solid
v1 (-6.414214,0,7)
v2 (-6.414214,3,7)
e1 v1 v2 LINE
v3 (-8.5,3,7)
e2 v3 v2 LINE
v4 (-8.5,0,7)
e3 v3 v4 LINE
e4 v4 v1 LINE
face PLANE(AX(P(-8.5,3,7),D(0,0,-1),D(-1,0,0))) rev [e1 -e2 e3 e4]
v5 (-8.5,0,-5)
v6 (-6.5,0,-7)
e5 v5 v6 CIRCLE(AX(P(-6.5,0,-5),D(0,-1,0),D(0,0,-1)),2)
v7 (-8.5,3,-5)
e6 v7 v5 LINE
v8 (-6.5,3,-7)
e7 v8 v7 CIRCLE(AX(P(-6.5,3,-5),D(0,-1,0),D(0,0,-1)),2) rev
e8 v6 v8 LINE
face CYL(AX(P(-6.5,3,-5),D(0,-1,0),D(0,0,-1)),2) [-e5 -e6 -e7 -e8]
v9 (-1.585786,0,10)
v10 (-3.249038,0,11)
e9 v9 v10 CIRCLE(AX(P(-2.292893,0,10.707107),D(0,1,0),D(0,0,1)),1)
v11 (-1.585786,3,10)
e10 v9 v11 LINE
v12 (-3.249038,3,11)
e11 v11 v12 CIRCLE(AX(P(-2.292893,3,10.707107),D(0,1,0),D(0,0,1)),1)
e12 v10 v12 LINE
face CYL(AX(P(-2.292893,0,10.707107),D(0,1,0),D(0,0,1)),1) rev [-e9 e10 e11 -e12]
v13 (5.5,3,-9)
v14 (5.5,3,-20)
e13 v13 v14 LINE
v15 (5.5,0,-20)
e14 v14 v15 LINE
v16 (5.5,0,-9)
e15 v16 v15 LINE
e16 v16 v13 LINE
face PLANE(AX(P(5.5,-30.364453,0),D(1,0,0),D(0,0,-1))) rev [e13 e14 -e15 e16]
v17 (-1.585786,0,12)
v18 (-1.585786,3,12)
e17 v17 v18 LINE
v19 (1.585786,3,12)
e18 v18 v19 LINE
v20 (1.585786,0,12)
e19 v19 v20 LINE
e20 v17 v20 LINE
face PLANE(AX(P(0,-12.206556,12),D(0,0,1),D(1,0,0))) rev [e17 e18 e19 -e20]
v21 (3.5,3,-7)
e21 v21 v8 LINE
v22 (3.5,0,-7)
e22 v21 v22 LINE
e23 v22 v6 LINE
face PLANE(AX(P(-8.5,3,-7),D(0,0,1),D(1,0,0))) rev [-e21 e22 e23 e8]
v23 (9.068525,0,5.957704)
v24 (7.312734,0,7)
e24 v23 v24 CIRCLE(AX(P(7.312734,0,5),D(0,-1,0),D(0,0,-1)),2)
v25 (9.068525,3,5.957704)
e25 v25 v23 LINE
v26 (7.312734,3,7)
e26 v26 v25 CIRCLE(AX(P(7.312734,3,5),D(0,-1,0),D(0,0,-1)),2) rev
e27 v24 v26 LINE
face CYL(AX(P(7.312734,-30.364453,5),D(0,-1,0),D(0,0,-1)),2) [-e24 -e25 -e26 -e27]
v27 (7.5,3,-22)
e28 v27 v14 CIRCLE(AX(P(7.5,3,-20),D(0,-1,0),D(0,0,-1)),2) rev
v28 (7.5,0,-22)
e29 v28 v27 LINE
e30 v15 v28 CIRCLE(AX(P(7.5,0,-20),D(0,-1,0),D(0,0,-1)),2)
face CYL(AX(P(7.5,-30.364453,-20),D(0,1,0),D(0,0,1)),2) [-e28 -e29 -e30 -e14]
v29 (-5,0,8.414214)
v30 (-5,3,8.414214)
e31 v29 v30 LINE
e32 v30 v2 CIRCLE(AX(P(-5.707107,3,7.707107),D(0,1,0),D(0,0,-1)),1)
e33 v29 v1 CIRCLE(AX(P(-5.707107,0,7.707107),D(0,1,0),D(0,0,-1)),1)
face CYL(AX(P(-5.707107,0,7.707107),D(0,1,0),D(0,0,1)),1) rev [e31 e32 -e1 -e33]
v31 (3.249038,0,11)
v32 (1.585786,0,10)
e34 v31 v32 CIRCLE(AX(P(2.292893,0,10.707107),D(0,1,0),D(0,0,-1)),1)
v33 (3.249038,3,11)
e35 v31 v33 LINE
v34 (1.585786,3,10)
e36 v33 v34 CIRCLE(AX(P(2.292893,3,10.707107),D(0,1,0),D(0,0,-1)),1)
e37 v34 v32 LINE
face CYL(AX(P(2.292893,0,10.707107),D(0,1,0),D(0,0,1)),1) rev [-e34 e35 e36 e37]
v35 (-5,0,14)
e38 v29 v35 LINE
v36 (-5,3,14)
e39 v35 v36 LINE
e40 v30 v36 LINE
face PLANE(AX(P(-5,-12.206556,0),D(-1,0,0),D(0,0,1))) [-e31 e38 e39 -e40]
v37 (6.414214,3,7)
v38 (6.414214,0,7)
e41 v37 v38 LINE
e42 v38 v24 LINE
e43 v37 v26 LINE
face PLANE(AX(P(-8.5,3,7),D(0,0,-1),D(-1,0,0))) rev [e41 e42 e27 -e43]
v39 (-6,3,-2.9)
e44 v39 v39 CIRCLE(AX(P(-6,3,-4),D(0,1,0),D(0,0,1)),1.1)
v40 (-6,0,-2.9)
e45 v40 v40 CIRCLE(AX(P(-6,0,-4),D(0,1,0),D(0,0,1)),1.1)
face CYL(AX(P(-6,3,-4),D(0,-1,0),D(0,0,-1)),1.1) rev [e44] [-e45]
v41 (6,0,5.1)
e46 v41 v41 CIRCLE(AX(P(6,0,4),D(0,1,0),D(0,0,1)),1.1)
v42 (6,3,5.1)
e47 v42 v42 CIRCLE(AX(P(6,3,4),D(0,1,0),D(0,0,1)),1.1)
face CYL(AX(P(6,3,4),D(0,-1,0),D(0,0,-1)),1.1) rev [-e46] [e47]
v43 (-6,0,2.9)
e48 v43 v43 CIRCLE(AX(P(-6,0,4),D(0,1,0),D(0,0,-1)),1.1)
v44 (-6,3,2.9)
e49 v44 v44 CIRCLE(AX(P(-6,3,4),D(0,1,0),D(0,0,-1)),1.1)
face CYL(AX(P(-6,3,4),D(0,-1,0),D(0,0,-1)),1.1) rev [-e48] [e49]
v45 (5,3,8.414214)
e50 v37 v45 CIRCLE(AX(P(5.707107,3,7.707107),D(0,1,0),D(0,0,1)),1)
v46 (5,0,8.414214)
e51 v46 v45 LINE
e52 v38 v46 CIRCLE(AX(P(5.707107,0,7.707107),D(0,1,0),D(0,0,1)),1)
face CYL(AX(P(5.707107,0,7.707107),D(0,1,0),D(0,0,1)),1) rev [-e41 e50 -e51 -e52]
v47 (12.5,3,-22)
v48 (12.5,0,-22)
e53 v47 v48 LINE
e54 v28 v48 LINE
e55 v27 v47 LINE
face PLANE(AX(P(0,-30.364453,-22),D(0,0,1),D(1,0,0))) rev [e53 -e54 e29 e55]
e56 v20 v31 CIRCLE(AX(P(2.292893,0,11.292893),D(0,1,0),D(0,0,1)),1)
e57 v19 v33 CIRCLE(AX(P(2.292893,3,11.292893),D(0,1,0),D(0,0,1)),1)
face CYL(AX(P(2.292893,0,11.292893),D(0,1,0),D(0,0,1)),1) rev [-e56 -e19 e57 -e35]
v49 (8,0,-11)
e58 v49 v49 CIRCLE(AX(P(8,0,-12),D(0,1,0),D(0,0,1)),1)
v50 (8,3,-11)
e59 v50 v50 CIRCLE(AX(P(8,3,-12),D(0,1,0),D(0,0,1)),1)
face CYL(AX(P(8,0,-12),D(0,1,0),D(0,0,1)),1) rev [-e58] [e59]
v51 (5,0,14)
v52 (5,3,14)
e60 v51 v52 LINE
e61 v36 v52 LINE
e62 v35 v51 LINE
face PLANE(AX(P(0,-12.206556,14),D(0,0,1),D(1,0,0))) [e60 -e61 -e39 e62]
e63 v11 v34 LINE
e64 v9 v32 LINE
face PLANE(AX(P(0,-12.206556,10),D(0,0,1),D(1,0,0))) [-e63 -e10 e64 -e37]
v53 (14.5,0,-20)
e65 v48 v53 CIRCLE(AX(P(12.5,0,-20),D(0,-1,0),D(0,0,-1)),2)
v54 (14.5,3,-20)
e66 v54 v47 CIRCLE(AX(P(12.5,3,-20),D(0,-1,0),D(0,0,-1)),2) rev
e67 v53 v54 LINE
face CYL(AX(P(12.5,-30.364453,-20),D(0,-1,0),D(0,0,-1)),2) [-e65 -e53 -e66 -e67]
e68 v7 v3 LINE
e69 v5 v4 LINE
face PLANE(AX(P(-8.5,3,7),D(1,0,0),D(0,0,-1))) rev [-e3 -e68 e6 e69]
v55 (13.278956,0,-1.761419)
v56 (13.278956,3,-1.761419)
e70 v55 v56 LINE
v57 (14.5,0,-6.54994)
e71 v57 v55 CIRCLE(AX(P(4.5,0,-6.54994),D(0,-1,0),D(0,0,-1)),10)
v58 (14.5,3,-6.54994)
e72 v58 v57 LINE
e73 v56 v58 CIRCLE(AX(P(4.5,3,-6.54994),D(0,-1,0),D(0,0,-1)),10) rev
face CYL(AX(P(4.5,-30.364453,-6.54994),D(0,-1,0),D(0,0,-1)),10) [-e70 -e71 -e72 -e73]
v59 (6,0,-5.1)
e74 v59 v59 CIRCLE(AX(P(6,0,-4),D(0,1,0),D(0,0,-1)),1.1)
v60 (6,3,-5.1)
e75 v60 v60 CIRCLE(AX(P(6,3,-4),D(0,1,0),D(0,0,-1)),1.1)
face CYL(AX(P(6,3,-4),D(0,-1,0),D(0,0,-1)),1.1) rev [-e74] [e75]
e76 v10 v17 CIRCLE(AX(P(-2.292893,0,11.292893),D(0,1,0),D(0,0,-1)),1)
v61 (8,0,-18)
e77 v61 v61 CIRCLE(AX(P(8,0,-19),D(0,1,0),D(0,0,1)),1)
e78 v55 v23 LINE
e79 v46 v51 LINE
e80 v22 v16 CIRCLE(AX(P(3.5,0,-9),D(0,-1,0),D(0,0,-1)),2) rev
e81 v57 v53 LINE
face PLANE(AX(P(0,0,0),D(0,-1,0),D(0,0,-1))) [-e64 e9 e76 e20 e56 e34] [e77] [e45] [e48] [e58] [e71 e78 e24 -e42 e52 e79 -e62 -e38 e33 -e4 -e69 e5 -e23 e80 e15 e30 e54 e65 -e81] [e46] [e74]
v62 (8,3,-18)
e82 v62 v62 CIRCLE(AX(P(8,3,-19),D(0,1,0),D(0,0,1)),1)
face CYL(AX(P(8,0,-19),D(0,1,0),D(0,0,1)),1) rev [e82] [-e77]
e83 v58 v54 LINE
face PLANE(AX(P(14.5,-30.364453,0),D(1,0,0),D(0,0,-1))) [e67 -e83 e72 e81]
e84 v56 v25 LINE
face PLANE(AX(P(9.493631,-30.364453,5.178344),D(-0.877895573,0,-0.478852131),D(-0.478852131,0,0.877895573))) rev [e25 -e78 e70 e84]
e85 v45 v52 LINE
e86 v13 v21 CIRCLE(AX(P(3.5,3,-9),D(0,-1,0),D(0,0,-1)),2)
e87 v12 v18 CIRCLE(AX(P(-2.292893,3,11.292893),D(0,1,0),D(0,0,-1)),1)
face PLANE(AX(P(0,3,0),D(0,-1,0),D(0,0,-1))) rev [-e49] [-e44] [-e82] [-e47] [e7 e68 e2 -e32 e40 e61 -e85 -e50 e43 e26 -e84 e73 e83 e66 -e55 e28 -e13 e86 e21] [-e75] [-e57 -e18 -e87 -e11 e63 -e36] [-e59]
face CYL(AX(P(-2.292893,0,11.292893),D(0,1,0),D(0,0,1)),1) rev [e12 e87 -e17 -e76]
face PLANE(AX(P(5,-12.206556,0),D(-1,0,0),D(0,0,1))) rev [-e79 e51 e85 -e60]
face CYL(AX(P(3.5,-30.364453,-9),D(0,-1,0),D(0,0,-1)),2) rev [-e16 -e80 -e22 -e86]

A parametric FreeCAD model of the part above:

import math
import FreeCAD as App
import Part
import Sketcher


def edges_at(feature, points):
    """Names of the edges that pass closest to the given points."""
    edges = feature.Shape.Edges
    near = lambda p: min(range(len(edges)), key=lambda i: edges[i].distToShape(Part.Vertex(*p))[0])
    return sorted({f"Edge{near(p) + 1}" for p in points})


def add_polygon(sketch, points):
    """Adds a closed chain of lines whose ends are joined by coincident constraints."""
    first, n = sketch.GeometryCount, len(points)
    for a, b in zip(points, points[1:] + points[:1]):
        sketch.addGeometry(Part.LineSegment(App.Vector(*a, 0), App.Vector(*b, 0)), False)
    for i in range(n):
        sketch.addConstraint(Sketcher.Constraint("Coincident", first + i, 2, first + (i + 1) % n, 1))

doc = App.newDocument("Part")
body = doc.addObject("PartDesign::Body", "Body")

# Sketch on XZ plane
sketch1 = doc.addObject("Sketcher::SketchObject", "Sketch")
body.addObject(sketch1)
sketch1.AttachmentSupport = (doc.XZ_Plane, [""])
sketch1.MapMode = "FlatFace"
add_polygon(sketch1, [(-8.5, -7), (-8.5, 7), (8.5, 7), (8.5, -7)])  # lines 0-3
sketch1.addGeometry(Part.Circle(App.Vector(-6, 4, 0), App.Vector(0, 0, 1), 1.1), False)  # 4
sketch1.addGeometry(Part.Circle(App.Vector(6, 4, 0), App.Vector(0, 0, 1), 1.1), False)  # 5
sketch1.addGeometry(Part.Circle(App.Vector(-6, -4, 0), App.Vector(0, 0, 1), 1.1), False)  # 6
sketch1.addGeometry(Part.Circle(App.Vector(6, -4, 0), App.Vector(0, 0, 1), 1.1), False)  # 7
sketch1.addConstraint(Sketcher.Constraint("Vertical", 0))
sketch1.addConstraint(Sketcher.Constraint("Horizontal", 1))
sketch1.addConstraint(Sketcher.Constraint("Vertical", 2))
sketch1.addConstraint(Sketcher.Constraint("Horizontal", 3))
sketch1.addConstraint(Sketcher.Constraint("Equal", 4, 5))
sketch1.addConstraint(Sketcher.Constraint("Equal", 5, 6))
sketch1.addConstraint(Sketcher.Constraint("Equal", 6, 7))
sketch1.addConstraint(Sketcher.Constraint("Symmetric", 5, 3, 6, 3, -1, 1))
sketch1.addConstraint(Sketcher.Constraint("Symmetric", 4, 3, 7, 3, -1, 1))
sketch1.addConstraint(Sketcher.Constraint("Symmetric", 0, 2, 2, 2, -1, 1))
sketch1.addConstraint(Sketcher.Constraint("Symmetric", 4, 3, 5, 3, -2))
sketch1.addConstraint(Sketcher.Constraint("Diameter", 4, 2.2))
sketch1.addConstraint(Sketcher.Constraint("DistanceX", 1, 1, 1, 2, 17.0))
sketch1.addConstraint(Sketcher.Constraint("DistanceY", 0, 1, 0, 2, 14.0))
sketch1.addConstraint(Sketcher.Constraint("DistanceX", 4, 3, -1, 1, 6.0))
sketch1.addConstraint(Sketcher.Constraint("DistanceY", -1, 1, 4, 3, 4.0))
pad1 = doc.addObject("PartDesign::Pad", "Pad")
body.addObject(pad1)
pad1.Profile = sketch1
pad1.Length = 3
pad1.Reversed = True

# Sketch on XZ plane
sketch2 = doc.addObject("Sketcher::SketchObject", "Sketch001")
body.addObject(sketch2)
sketch2.AttachmentSupport = (doc.XZ_Plane, [""])
sketch2.MapMode = "FlatFace"
sketch2.AttachmentOffset = App.Placement(App.Vector(0, 0, -3), App.Rotation())
add_polygon(sketch2, [(5.5, -22), (5.5, -7), (8.5, -7), (8.5, 7), (14.5, -4), (14.5, -22)])  # lines 0-5
sketch2.addConstraint(Sketcher.Constraint("Vertical", 0))
sketch2.addConstraint(Sketcher.Constraint("Horizontal", 1))
sketch2.addConstraint(Sketcher.Constraint("Vertical", 2))
sketch2.addConstraint(Sketcher.Constraint("Vertical", 4))
sketch2.addConstraint(Sketcher.Constraint("Horizontal", 5))
sketch2.addConstraint(Sketcher.Constraint("DistanceX", 1, 1, 1, 2, 3.0))
sketch2.addConstraint(Sketcher.Constraint("DistanceX", 5, 2, 5, 1, 9.0))
sketch2.addConstraint(Sketcher.Constraint("DistanceY", 0, 1, 0, 2, 15.0))
sketch2.addConstraint(Sketcher.Constraint("DistanceY", 2, 1, 2, 2, 14.0))
sketch2.addConstraint(Sketcher.Constraint("DistanceY", 4, 2, 4, 1, 18.0))
sketch2.addConstraint(Sketcher.Constraint("DistanceY", 0, 2, -1, 1, 7.0))
sketch2.addConstraint(Sketcher.Constraint("DistanceX", -1, 1, 0, 2, 5.5))
pad2 = doc.addObject("PartDesign::Pad", "Pad001")
body.addObject(pad2)
pad2.Profile = sketch2
pad2.Length = 3

# Sketch on XZ plane
sketch3 = doc.addObject("Sketcher::SketchObject", "Sketch002")
body.addObject(sketch3)
sketch3.AttachmentSupport = (doc.XZ_Plane, [""])
sketch3.MapMode = "FlatFace"
sketch3.AttachmentOffset = App.Placement(App.Vector(0, 0, -3), App.Rotation())
sketch3.addGeometry(Part.Circle(App.Vector(8, -19, 0), App.Vector(0, 0, 1), 1), False)
sketch3.addGeometry(Part.Circle(App.Vector(8, -12, 0), App.Vector(0, 0, 1), 1), False)
sketch3.addConstraint(Sketcher.Constraint("Equal", 0, 1))
sketch3.addConstraint(Sketcher.Constraint("Vertical", 0, 3, 1, 3))
sketch3.addConstraint(Sketcher.Constraint("Diameter", 0, 2.0))
sketch3.addConstraint(Sketcher.Constraint("DistanceX", -1, 1, 0, 3, 8.0))
sketch3.addConstraint(Sketcher.Constraint("DistanceY", 0, 3, -1, 1, 19.0))
sketch3.addConstraint(Sketcher.Constraint("DistanceY", 1, 3, -1, 1, 12.0))
pocket1 = doc.addObject("PartDesign::Pocket", "Pocket")
body.addObject(pocket1)
pocket1.Profile = sketch3
pocket1.Type = "ThroughAll"
pocket1.Reversed = True

# Sketch on XZ plane
sketch4 = doc.addObject("Sketcher::SketchObject", "Sketch003")
body.addObject(sketch4)
sketch4.AttachmentSupport = (doc.XZ_Plane, [""])
sketch4.MapMode = "FlatFace"
sketch4.AttachmentOffset = App.Placement(App.Vector(0, 0, -3), App.Rotation())
add_polygon(sketch4, [(-5, 7), (-5, 14), (5, 14), (5, 7)])  # lines 0-3
add_polygon(sketch4, [(3, 12), (-3, 12), (-3, 10), (3, 10)])  # lines 4-7
sketch4.addConstraint(Sketcher.Constraint("Vertical", 0))
sketch4.addConstraint(Sketcher.Constraint("Horizontal", 1))
sketch4.addConstraint(Sketcher.Constraint("Vertical", 2))
sketch4.addConstraint(Sketcher.Constraint("Horizontal", 3))
sketch4.addConstraint(Sketcher.Constraint("Horizontal", 4))
sketch4.addConstraint(Sketcher.Constraint("Vertical", 5))
sketch4.addConstraint(Sketcher.Constraint("Horizontal", 6))
sketch4.addConstraint(Sketcher.Constraint("Vertical", 7))
sketch4.addConstraint(Sketcher.Constraint("DistanceX", 1, 1, 1, 2, 10.0))
sketch4.addConstraint(Sketcher.Constraint("DistanceX", 4, 2, 4, 1, 6.0))
sketch4.addConstraint(Sketcher.Constraint("DistanceY", 0, 1, 0, 2, 7.0))
sketch4.addConstraint(Sketcher.Constraint("DistanceY", 5, 2, 5, 1, 2.0))
sketch4.addConstraint(Sketcher.Constraint("DistanceX", 0, 2, -1, 1, 5.0))
sketch4.addConstraint(Sketcher.Constraint("DistanceY", -1, 1, 0, 2, 14.0))
sketch4.addConstraint(Sketcher.Constraint("DistanceX", 4, 2, -1, 1, 3.0))
sketch4.addConstraint(Sketcher.Constraint("DistanceY", -1, 1, 4, 2, 12.0))
pad3 = doc.addObject("PartDesign::Pad", "Pad002")
body.addObject(pad3)
pad3.Profile = sketch4
pad3.Length = 3

# Sketch on XZ plane
sketch5 = doc.addObject("Sketcher::SketchObject", "Sketch004")
body.addObject(sketch5)
sketch5.AttachmentSupport = (doc.XZ_Plane, [""])
sketch5.MapMode = "FlatFace"
sketch5.AttachmentOffset = App.Placement(App.Vector(0, 0, -3), App.Rotation())
sketch5.addGeometry(Part.Circle(App.Vector(5.707107, 7.707107, 0), App.Vector(0, 0, 1), 1), False)
sketch5.addGeometry(Part.Circle(App.Vector(-5.707107, 7.707107, 0), App.Vector(0, 0, 1), 1), False)
sketch5.addConstraint(Sketcher.Constraint("Equal", 0, 1))
sketch5.addConstraint(Sketcher.Constraint("Symmetric", 0, 3, 1, 3, -2))
sketch5.addConstraint(Sketcher.Constraint("Diameter", 0, 2.0))
sketch5.addConstraint(Sketcher.Constraint("DistanceX", -1, 1, 0, 3, 5.707107))
sketch5.addConstraint(Sketcher.Constraint("DistanceY", -1, 1, 0, 3, 7.707107))
pocket2 = doc.addObject("PartDesign::Pocket", "Pocket001")
body.addObject(pocket2)
pocket2.Profile = sketch5
pocket2.Type = "ThroughAll"
pocket2.Reversed = True
doc.recompute()

fillet = doc.addObject("PartDesign::Fillet", "Fillet")
body.addObject(fillet)
fillet.Base = (pocket2, edges_at(pocket2, [(14.5, 1.5, -4)]))
fillet.Radius = 10
doc.recompute()

fillet2 = doc.addObject("PartDesign::Fillet", "Fillet001")
body.addObject(fillet2)
fillet2.Base = (fillet, edges_at(fillet, [
    (14.5, 1.5, -22),
    (5.5, 1.5, -22),
    (5.5, 1.5, -7),
    (8.5, 1.5, 7),
    (-8.5, 1.5, -7),
]))
fillet2.Radius = 2

# Sketch on XZ plane
sketch6 = doc.addObject("Sketcher::SketchObject", "Sketch005")
body.addObject(sketch6)
sketch6.AttachmentSupport = (doc.XZ_Plane, [""])
sketch6.MapMode = "FlatFace"
sketch6.AttachmentOffset = App.Placement(App.Vector(0, 0, -3), App.Rotation())
sketch6.addGeometry(Part.ArcOfCircle(Part.Circle(App.Vector(-2.292893, 10.707107, 0), App.Vector(0, 0, 1), 1), math.radians(162.968752), math.radians(377.031248)), False)
sketch6.addGeometry(Part.ArcOfCircle(Part.Circle(App.Vector(-2.292893, 11.292893, 0), App.Vector(0, 0, 1), 1), math.radians(-17.031248), math.radians(197.031248)), False)
sketch6.addGeometry(Part.ArcOfCircle(Part.Circle(App.Vector(2.292893, 11.292893, 0), App.Vector(0, 0, 1), 1), math.radians(-17.031248), math.radians(197.031248)), False)
sketch6.addGeometry(Part.ArcOfCircle(Part.Circle(App.Vector(2.292893, 10.707107, 0), App.Vector(0, 0, 1), 1), math.radians(162.968752), math.radians(377.031248)), False)
sketch6.addConstraint(Sketcher.Constraint("Coincident", 0, 1, 1, 2))
sketch6.addConstraint(Sketcher.Constraint("Coincident", 1, 1, 0, 2))
sketch6.addConstraint(Sketcher.Constraint("Coincident", 2, 1, 3, 2))
sketch6.addConstraint(Sketcher.Constraint("Coincident", 3, 1, 2, 2))
sketch6.addConstraint(Sketcher.Constraint("Equal", 0, 1))
sketch6.addConstraint(Sketcher.Constraint("Equal", 1, 2))
sketch6.addConstraint(Sketcher.Constraint("Equal", 2, 3))
sketch6.addConstraint(Sketcher.Constraint("Symmetric", 1, 3, 2, 3, -2))
sketch6.addConstraint(Sketcher.Constraint("Symmetric", 0, 3, 3, 3, -2))
sketch6.addConstraint(Sketcher.Constraint("Horizontal", 0, 1, 1, 1))
sketch6.addConstraint(Sketcher.Constraint("Radius", 0, 1.0))
sketch6.addConstraint(Sketcher.Constraint("DistanceY", -1, 1, 0, 1, 11.0))
sketch6.addConstraint(Sketcher.Constraint("DistanceX", 0, 1, -1, 1, 3.249038))
sketch6.addConstraint(Sketcher.Constraint("DistanceX", 1, 1, -1, 1, 1.336748))
pocket3 = doc.addObject("PartDesign::Pocket", "Pocket002")
body.addObject(pocket3)
pocket3.Profile = sketch6
pocket3.Type = "ThroughAll"
pocket3.Reversed = True

doc.recompute()
